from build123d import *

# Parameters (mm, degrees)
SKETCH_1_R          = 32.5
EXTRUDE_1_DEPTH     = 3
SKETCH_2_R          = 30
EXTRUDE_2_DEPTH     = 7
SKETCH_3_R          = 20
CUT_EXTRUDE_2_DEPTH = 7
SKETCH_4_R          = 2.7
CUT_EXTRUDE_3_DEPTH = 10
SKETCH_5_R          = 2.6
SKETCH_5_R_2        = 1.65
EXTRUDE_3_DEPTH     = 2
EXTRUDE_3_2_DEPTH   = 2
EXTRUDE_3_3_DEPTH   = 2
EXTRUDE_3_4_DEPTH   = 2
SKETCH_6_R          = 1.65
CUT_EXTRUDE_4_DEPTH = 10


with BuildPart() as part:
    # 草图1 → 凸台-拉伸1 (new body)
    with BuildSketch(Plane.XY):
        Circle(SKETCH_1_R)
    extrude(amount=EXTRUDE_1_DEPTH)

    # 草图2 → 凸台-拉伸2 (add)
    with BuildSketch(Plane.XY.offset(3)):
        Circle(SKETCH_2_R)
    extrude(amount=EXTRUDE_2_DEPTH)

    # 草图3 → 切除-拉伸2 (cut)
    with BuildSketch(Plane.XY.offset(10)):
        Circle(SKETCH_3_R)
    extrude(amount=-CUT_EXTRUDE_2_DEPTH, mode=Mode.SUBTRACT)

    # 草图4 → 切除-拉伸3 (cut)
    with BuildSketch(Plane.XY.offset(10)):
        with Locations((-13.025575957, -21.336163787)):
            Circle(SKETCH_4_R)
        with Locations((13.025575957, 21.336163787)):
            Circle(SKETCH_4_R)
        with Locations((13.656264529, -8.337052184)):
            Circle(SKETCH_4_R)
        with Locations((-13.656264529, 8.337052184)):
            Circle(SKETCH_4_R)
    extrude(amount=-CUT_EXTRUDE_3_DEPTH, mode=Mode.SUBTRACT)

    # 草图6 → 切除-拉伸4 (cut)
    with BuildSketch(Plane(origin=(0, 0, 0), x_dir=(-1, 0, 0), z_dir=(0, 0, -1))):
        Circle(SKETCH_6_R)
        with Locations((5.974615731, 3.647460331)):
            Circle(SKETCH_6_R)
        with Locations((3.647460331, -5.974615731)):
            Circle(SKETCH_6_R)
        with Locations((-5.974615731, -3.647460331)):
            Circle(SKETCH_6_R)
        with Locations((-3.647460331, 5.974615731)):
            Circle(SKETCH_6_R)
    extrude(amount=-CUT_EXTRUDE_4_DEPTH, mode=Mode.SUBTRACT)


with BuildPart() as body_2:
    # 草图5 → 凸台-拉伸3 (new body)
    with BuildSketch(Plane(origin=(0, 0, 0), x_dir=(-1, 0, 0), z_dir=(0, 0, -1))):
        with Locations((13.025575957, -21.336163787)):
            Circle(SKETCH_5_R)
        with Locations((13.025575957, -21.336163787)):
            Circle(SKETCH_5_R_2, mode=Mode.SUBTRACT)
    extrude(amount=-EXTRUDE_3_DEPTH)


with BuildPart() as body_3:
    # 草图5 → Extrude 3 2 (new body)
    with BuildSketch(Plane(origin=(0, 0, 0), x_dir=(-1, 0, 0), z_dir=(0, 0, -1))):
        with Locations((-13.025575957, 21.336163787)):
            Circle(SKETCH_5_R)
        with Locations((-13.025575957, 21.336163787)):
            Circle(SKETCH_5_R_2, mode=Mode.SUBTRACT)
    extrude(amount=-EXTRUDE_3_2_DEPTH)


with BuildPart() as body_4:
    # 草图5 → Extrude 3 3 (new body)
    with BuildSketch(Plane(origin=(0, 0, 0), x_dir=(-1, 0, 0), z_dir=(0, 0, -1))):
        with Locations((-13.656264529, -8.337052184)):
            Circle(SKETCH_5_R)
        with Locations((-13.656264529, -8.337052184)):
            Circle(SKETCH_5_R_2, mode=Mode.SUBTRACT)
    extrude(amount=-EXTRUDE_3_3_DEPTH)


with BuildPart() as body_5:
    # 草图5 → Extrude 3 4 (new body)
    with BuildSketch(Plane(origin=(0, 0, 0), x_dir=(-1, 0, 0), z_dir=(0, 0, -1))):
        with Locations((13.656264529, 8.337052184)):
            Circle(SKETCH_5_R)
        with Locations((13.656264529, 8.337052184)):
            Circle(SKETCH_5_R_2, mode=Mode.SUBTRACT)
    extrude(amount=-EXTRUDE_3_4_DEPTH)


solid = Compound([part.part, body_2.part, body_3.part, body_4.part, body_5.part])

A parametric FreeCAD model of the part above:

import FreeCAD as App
import Part
import Sketcher

V = App.Vector
Q = App.Units.Quantity

doc = App.newDocument("Part")
body = doc.addObject("PartDesign::Body", "Body")

sketch1 = body.newObject("Sketcher::SketchObject", "Sketch")
sketch1.AttachmentSupport = (doc.getObject("XY_Plane"), [""])
sketch1.MapMode = "FlatFace"
sketch1.addGeometry(Part.Circle(V(0, 0, 0), V(0, 0, 1), 32), False)
sketch1.addConstraint([
    Sketcher.Constraint("Coincident", 0, 3, -1, 1),
    Sketcher.Constraint("Diameter", 0, Q("65 mm")),
])
pad1 = body.newObject("PartDesign::Pad", "Pad")
pad1.Profile = sketch1
pad1.Length = 3

sketch2 = body.newObject("Sketcher::SketchObject", "Sketch001")
sketch2.AttachmentSupport = (doc.getObject("XY_Plane"), [""])
sketch2.MapMode = "FlatFace"
sketch2.AttachmentOffset = App.Placement(V(0, 0, 3), App.Rotation())
sketch2.addGeometry(Part.Circle(V(0, 0, 0), V(0, 0, 1), 30), False)
sketch2.addConstraint([
    Sketcher.Constraint("Coincident", 0, 3, -1, 1),
    Sketcher.Constraint("Diameter", 0, Q("60 mm")),
])
pad2 = body.newObject("PartDesign::Pad", "Pad001")
pad2.Profile = sketch2
pad2.Length = 7

sketch3 = body.newObject("Sketcher::SketchObject", "Sketch002")
sketch3.AttachmentSupport = (doc.getObject("XY_Plane"), [""])
sketch3.MapMode = "FlatFace"
sketch3.AttachmentOffset = App.Placement(V(0, 0, 10), App.Rotation())
sketch3.addGeometry(Part.Circle(V(0, 0, 0), V(0, 0, 1), 20), False)
sketch3.addConstraint([
    Sketcher.Constraint("Coincident", 0, 3, -1, 1),
    Sketcher.Constraint("Diameter", 0, Q("40 mm")),
])
pocket1 = body.newObject("PartDesign::Pocket", "Pocket")
pocket1.Profile = sketch3
pocket1.Length = 7

sketch4 = body.newObject("Sketcher::SketchObject", "Sketch003")
sketch4.AttachmentSupport = (doc.getObject("XY_Plane"), [""])
sketch4.MapMode = "FlatFace"
sketch4.AttachmentOffset = App.Placement(V(0, 0, 10), App.Rotation())
sketch4.addGeometry([
    Part.Circle(V(-13, -21.3, 0), V(0, 0, 1), 2.7),
    Part.Circle(V(13, 21.3, 0), V(0, 0, 1), 2.7),
    Part.Circle(V(13.7, -8.3, 0), V(0, 0, 1), 2.7),
    Part.Circle(V(-13.7, 8.3, 0), V(0, 0, 1), 2.7),
], False)
sketch4.addConstraint([
    Sketcher.Constraint("Equal", 0, 1),
    Sketcher.Constraint("Equal", 1, 2),
    Sketcher.Constraint("Equal", 2, 3),
    Sketcher.Constraint("Symmetric", 0, 3, 1, 3, -1, 1),
    Sketcher.Constraint("Symmetric", 2, 3, 3, 3, -1, 1),
    Sketcher.Constraint("Diameter", 0, Q("5.4 mm")),
    Sketcher.Constraint("DistanceX", 0, 3, 1, 3, Q("26.051152 mm")),
    Sketcher.Constraint("DistanceX", 1, 3, 2, 3, Q("0.630689 mm")),
    Sketcher.Constraint("DistanceY", 0, 3, 2, 3, Q("12.999112 mm")),
    Sketcher.Constraint("DistanceY", 0, 3, -1, 1, Q("21.336164 mm")),
])
pocket2 = body.newObject("PartDesign::Pocket", "Pocket001")
pocket2.Profile = sketch4
pocket2.Length = 10

sketch5 = body.newObject("Sketcher::SketchObject", "Sketch004")
sketch5.AttachmentSupport = (doc.getObject("XY_Plane"), [""])
sketch5.MapMode = "FlatFace"
sketch5.addGeometry([
    Part.Circle(V(0, 0, 0), V(0, 0, 1), 1.6),
    Part.Circle(V(-6, 3.6, 0), V(0, 0, 1), 1.6),
    Part.Circle(V(-3.6, -6, 0), V(0, 0, 1), 1.6),
    Part.Circle(V(6, -3.6, 0), V(0, 0, 1), 1.6),
    Part.Circle(V(3.6, 6, 0), V(0, 0, 1), 1.6),
], False)
sketch5.addConstraint([
    Sketcher.Constraint("Coincident", 0, 3, -1, 1),
    Sketcher.Constraint("Equal", 0, 1),
    Sketcher.Constraint("Equal", 1, 2),
    Sketcher.Constraint("Equal", 2, 3),
    Sketcher.Constraint("Equal", 3, 4),
    Sketcher.Constraint("Symmetric", 1, 3, 3, 3, -1, 1),
    Sketcher.Constraint("Symmetric", 2, 3, 4, 3, -1, 1),
    Sketcher.Constraint("Diameter", 0, Q("3.3 mm")),
    Sketcher.Constraint("DistanceY", -1, 1, 1, 3, Q("3.64746 mm")),
    Sketcher.Constraint("DistanceX", 2, 3, -1, 1, Q("3.64746 mm")),
    Sketcher.Constraint("DistanceX", 1, 3, 3, 3, Q("11.949231 mm")),
    Sketcher.Constraint("DistanceY", 2, 3, 4, 3, Q("11.949231 mm")),
])
pocket3 = body.newObject("PartDesign::Pocket", "Pocket002")
pocket3.Profile = sketch5
pocket3.Length = 10
pocket3.Reversed = True
body2 = doc.addObject("PartDesign::Body", "Body001")

sketch6 = body2.newObject("Sketcher::SketchObject", "Sketch005")
sketch6.AttachmentSupport = (doc.getObject("XY_Plane001"), [""])
sketch6.MapMode = "FlatFace"
sketch6.addGeometry([
    Part.Circle(V(-13, -21.3, 0), V(0, 0, 1), 2.6),
    Part.Circle(V(-13, -21.3, 0), V(0, 0, 1), 1.6),
], False)
sketch6.addConstraint([
    Sketcher.Constraint("Coincident", 1, 3, 0, 3),
    Sketcher.Constraint("Diameter", 0, Q("5.2 mm")),
    Sketcher.Constraint("Diameter", 1, Q("3.3 mm")),
    Sketcher.Constraint("DistanceX", 0, 3, -1, 1, Q("13.025576 mm")),
    Sketcher.Constraint("DistanceY", 0, 3, -1, 1, Q("21.336164 mm")),
])
pad3 = body2.newObject("PartDesign::Pad", "Pad002")
pad3.Profile = sketch6
pad3.Length = 2
body3 = doc.addObject("PartDesign::Body", "Body002")

sketch7 = body3.newObject("Sketcher::SketchObject", "Sketch006")
sketch7.AttachmentSupport = (doc.getObject("XY_Plane002"), [""])
sketch7.MapMode = "FlatFace"
sketch7.addGeometry([
    Part.Circle(V(13, 21.3, 0), V(0, 0, 1), 2.6),
    Part.Circle(V(13, 21.3, 0), V(0, 0, 1), 1.6),
], False)
sketch7.addConstraint([
    Sketcher.Constraint("Coincident", 1, 3, 0, 3),
    Sketcher.Constraint("Diameter", 0, Q("5.2 mm")),
    Sketcher.Constraint("Diameter", 1, Q("3.3 mm")),
    Sketcher.Constraint("DistanceX", -1, 1, 0, 3, Q("13.025576 mm")),
    Sketcher.Constraint("DistanceY", -1, 1, 0, 3, Q("21.336164 mm")),
])
pad4 = body3.newObject("PartDesign::Pad", "Pad003")
pad4.Profile = sketch7
pad4.Length = 2
body4 = doc.addObject("PartDesign::Body", "Body003")

sketch8 = body4.newObject("Sketcher::SketchObject", "Sketch007")
sketch8.AttachmentSupport = (doc.getObject("XY_Plane003"), [""])
sketch8.MapMode = "FlatFace"
sketch8.addGeometry([
    Part.Circle(V(13.7, -8.3, 0), V(0, 0, 1), 2.6),
    Part.Circle(V(13.7, -8.3, 0), V(0, 0, 1), 1.6),
], False)
sketch8.addConstraint([
    Sketcher.Constraint("Coincident", 1, 3, 0, 3),
    Sketcher.Constraint("Diameter", 0, Q("5.2 mm")),
    Sketcher.Constraint("Diameter", 1, Q("3.3 mm")),
    Sketcher.Constraint("DistanceX", -1, 1, 0, 3, Q("13.656265 mm")),
    Sketcher.Constraint("DistanceY", 0, 3, -1, 1, Q("8.337052 mm")),
])
pad5 = body4.newObject("PartDesign::Pad", "Pad004")
pad5.Profile = sketch8
pad5.Length = 2
body5 = doc.addObject("PartDesign::Body", "Body004")

sketch9 = body5.newObject("Sketcher::SketchObject", "Sketch008")
sketch9.AttachmentSupport = (doc.getObject("XY_Plane004"), [""])
sketch9.MapMode = "FlatFace"
sketch9.addGeometry([
    Part.Circle(V(-13.7, 8.3, 0), V(0, 0, 1), 2.6),
    Part.Circle(V(-13.7, 8.3, 0), V(0, 0, 1), 1.6),
], False)
sketch9.addConstraint([
    Sketcher.Constraint("Coincident", 1, 3, 0, 3),
    Sketcher.Constraint("Diameter", 0, Q("5.2 mm")),
    Sketcher.Constraint("Diameter", 1, Q("3.3 mm")),
    Sketcher.Constraint("DistanceX", 0, 3, -1, 1, Q("13.656265 mm")),
    Sketcher.Constraint("DistanceY", -1, 1, 0, 3, Q("8.337052 mm")),
])
pad6 = body5.newObject("PartDesign::Pad", "Pad005")
pad6.Profile = sketch9
pad6.Length = 2

doc.recompute()
